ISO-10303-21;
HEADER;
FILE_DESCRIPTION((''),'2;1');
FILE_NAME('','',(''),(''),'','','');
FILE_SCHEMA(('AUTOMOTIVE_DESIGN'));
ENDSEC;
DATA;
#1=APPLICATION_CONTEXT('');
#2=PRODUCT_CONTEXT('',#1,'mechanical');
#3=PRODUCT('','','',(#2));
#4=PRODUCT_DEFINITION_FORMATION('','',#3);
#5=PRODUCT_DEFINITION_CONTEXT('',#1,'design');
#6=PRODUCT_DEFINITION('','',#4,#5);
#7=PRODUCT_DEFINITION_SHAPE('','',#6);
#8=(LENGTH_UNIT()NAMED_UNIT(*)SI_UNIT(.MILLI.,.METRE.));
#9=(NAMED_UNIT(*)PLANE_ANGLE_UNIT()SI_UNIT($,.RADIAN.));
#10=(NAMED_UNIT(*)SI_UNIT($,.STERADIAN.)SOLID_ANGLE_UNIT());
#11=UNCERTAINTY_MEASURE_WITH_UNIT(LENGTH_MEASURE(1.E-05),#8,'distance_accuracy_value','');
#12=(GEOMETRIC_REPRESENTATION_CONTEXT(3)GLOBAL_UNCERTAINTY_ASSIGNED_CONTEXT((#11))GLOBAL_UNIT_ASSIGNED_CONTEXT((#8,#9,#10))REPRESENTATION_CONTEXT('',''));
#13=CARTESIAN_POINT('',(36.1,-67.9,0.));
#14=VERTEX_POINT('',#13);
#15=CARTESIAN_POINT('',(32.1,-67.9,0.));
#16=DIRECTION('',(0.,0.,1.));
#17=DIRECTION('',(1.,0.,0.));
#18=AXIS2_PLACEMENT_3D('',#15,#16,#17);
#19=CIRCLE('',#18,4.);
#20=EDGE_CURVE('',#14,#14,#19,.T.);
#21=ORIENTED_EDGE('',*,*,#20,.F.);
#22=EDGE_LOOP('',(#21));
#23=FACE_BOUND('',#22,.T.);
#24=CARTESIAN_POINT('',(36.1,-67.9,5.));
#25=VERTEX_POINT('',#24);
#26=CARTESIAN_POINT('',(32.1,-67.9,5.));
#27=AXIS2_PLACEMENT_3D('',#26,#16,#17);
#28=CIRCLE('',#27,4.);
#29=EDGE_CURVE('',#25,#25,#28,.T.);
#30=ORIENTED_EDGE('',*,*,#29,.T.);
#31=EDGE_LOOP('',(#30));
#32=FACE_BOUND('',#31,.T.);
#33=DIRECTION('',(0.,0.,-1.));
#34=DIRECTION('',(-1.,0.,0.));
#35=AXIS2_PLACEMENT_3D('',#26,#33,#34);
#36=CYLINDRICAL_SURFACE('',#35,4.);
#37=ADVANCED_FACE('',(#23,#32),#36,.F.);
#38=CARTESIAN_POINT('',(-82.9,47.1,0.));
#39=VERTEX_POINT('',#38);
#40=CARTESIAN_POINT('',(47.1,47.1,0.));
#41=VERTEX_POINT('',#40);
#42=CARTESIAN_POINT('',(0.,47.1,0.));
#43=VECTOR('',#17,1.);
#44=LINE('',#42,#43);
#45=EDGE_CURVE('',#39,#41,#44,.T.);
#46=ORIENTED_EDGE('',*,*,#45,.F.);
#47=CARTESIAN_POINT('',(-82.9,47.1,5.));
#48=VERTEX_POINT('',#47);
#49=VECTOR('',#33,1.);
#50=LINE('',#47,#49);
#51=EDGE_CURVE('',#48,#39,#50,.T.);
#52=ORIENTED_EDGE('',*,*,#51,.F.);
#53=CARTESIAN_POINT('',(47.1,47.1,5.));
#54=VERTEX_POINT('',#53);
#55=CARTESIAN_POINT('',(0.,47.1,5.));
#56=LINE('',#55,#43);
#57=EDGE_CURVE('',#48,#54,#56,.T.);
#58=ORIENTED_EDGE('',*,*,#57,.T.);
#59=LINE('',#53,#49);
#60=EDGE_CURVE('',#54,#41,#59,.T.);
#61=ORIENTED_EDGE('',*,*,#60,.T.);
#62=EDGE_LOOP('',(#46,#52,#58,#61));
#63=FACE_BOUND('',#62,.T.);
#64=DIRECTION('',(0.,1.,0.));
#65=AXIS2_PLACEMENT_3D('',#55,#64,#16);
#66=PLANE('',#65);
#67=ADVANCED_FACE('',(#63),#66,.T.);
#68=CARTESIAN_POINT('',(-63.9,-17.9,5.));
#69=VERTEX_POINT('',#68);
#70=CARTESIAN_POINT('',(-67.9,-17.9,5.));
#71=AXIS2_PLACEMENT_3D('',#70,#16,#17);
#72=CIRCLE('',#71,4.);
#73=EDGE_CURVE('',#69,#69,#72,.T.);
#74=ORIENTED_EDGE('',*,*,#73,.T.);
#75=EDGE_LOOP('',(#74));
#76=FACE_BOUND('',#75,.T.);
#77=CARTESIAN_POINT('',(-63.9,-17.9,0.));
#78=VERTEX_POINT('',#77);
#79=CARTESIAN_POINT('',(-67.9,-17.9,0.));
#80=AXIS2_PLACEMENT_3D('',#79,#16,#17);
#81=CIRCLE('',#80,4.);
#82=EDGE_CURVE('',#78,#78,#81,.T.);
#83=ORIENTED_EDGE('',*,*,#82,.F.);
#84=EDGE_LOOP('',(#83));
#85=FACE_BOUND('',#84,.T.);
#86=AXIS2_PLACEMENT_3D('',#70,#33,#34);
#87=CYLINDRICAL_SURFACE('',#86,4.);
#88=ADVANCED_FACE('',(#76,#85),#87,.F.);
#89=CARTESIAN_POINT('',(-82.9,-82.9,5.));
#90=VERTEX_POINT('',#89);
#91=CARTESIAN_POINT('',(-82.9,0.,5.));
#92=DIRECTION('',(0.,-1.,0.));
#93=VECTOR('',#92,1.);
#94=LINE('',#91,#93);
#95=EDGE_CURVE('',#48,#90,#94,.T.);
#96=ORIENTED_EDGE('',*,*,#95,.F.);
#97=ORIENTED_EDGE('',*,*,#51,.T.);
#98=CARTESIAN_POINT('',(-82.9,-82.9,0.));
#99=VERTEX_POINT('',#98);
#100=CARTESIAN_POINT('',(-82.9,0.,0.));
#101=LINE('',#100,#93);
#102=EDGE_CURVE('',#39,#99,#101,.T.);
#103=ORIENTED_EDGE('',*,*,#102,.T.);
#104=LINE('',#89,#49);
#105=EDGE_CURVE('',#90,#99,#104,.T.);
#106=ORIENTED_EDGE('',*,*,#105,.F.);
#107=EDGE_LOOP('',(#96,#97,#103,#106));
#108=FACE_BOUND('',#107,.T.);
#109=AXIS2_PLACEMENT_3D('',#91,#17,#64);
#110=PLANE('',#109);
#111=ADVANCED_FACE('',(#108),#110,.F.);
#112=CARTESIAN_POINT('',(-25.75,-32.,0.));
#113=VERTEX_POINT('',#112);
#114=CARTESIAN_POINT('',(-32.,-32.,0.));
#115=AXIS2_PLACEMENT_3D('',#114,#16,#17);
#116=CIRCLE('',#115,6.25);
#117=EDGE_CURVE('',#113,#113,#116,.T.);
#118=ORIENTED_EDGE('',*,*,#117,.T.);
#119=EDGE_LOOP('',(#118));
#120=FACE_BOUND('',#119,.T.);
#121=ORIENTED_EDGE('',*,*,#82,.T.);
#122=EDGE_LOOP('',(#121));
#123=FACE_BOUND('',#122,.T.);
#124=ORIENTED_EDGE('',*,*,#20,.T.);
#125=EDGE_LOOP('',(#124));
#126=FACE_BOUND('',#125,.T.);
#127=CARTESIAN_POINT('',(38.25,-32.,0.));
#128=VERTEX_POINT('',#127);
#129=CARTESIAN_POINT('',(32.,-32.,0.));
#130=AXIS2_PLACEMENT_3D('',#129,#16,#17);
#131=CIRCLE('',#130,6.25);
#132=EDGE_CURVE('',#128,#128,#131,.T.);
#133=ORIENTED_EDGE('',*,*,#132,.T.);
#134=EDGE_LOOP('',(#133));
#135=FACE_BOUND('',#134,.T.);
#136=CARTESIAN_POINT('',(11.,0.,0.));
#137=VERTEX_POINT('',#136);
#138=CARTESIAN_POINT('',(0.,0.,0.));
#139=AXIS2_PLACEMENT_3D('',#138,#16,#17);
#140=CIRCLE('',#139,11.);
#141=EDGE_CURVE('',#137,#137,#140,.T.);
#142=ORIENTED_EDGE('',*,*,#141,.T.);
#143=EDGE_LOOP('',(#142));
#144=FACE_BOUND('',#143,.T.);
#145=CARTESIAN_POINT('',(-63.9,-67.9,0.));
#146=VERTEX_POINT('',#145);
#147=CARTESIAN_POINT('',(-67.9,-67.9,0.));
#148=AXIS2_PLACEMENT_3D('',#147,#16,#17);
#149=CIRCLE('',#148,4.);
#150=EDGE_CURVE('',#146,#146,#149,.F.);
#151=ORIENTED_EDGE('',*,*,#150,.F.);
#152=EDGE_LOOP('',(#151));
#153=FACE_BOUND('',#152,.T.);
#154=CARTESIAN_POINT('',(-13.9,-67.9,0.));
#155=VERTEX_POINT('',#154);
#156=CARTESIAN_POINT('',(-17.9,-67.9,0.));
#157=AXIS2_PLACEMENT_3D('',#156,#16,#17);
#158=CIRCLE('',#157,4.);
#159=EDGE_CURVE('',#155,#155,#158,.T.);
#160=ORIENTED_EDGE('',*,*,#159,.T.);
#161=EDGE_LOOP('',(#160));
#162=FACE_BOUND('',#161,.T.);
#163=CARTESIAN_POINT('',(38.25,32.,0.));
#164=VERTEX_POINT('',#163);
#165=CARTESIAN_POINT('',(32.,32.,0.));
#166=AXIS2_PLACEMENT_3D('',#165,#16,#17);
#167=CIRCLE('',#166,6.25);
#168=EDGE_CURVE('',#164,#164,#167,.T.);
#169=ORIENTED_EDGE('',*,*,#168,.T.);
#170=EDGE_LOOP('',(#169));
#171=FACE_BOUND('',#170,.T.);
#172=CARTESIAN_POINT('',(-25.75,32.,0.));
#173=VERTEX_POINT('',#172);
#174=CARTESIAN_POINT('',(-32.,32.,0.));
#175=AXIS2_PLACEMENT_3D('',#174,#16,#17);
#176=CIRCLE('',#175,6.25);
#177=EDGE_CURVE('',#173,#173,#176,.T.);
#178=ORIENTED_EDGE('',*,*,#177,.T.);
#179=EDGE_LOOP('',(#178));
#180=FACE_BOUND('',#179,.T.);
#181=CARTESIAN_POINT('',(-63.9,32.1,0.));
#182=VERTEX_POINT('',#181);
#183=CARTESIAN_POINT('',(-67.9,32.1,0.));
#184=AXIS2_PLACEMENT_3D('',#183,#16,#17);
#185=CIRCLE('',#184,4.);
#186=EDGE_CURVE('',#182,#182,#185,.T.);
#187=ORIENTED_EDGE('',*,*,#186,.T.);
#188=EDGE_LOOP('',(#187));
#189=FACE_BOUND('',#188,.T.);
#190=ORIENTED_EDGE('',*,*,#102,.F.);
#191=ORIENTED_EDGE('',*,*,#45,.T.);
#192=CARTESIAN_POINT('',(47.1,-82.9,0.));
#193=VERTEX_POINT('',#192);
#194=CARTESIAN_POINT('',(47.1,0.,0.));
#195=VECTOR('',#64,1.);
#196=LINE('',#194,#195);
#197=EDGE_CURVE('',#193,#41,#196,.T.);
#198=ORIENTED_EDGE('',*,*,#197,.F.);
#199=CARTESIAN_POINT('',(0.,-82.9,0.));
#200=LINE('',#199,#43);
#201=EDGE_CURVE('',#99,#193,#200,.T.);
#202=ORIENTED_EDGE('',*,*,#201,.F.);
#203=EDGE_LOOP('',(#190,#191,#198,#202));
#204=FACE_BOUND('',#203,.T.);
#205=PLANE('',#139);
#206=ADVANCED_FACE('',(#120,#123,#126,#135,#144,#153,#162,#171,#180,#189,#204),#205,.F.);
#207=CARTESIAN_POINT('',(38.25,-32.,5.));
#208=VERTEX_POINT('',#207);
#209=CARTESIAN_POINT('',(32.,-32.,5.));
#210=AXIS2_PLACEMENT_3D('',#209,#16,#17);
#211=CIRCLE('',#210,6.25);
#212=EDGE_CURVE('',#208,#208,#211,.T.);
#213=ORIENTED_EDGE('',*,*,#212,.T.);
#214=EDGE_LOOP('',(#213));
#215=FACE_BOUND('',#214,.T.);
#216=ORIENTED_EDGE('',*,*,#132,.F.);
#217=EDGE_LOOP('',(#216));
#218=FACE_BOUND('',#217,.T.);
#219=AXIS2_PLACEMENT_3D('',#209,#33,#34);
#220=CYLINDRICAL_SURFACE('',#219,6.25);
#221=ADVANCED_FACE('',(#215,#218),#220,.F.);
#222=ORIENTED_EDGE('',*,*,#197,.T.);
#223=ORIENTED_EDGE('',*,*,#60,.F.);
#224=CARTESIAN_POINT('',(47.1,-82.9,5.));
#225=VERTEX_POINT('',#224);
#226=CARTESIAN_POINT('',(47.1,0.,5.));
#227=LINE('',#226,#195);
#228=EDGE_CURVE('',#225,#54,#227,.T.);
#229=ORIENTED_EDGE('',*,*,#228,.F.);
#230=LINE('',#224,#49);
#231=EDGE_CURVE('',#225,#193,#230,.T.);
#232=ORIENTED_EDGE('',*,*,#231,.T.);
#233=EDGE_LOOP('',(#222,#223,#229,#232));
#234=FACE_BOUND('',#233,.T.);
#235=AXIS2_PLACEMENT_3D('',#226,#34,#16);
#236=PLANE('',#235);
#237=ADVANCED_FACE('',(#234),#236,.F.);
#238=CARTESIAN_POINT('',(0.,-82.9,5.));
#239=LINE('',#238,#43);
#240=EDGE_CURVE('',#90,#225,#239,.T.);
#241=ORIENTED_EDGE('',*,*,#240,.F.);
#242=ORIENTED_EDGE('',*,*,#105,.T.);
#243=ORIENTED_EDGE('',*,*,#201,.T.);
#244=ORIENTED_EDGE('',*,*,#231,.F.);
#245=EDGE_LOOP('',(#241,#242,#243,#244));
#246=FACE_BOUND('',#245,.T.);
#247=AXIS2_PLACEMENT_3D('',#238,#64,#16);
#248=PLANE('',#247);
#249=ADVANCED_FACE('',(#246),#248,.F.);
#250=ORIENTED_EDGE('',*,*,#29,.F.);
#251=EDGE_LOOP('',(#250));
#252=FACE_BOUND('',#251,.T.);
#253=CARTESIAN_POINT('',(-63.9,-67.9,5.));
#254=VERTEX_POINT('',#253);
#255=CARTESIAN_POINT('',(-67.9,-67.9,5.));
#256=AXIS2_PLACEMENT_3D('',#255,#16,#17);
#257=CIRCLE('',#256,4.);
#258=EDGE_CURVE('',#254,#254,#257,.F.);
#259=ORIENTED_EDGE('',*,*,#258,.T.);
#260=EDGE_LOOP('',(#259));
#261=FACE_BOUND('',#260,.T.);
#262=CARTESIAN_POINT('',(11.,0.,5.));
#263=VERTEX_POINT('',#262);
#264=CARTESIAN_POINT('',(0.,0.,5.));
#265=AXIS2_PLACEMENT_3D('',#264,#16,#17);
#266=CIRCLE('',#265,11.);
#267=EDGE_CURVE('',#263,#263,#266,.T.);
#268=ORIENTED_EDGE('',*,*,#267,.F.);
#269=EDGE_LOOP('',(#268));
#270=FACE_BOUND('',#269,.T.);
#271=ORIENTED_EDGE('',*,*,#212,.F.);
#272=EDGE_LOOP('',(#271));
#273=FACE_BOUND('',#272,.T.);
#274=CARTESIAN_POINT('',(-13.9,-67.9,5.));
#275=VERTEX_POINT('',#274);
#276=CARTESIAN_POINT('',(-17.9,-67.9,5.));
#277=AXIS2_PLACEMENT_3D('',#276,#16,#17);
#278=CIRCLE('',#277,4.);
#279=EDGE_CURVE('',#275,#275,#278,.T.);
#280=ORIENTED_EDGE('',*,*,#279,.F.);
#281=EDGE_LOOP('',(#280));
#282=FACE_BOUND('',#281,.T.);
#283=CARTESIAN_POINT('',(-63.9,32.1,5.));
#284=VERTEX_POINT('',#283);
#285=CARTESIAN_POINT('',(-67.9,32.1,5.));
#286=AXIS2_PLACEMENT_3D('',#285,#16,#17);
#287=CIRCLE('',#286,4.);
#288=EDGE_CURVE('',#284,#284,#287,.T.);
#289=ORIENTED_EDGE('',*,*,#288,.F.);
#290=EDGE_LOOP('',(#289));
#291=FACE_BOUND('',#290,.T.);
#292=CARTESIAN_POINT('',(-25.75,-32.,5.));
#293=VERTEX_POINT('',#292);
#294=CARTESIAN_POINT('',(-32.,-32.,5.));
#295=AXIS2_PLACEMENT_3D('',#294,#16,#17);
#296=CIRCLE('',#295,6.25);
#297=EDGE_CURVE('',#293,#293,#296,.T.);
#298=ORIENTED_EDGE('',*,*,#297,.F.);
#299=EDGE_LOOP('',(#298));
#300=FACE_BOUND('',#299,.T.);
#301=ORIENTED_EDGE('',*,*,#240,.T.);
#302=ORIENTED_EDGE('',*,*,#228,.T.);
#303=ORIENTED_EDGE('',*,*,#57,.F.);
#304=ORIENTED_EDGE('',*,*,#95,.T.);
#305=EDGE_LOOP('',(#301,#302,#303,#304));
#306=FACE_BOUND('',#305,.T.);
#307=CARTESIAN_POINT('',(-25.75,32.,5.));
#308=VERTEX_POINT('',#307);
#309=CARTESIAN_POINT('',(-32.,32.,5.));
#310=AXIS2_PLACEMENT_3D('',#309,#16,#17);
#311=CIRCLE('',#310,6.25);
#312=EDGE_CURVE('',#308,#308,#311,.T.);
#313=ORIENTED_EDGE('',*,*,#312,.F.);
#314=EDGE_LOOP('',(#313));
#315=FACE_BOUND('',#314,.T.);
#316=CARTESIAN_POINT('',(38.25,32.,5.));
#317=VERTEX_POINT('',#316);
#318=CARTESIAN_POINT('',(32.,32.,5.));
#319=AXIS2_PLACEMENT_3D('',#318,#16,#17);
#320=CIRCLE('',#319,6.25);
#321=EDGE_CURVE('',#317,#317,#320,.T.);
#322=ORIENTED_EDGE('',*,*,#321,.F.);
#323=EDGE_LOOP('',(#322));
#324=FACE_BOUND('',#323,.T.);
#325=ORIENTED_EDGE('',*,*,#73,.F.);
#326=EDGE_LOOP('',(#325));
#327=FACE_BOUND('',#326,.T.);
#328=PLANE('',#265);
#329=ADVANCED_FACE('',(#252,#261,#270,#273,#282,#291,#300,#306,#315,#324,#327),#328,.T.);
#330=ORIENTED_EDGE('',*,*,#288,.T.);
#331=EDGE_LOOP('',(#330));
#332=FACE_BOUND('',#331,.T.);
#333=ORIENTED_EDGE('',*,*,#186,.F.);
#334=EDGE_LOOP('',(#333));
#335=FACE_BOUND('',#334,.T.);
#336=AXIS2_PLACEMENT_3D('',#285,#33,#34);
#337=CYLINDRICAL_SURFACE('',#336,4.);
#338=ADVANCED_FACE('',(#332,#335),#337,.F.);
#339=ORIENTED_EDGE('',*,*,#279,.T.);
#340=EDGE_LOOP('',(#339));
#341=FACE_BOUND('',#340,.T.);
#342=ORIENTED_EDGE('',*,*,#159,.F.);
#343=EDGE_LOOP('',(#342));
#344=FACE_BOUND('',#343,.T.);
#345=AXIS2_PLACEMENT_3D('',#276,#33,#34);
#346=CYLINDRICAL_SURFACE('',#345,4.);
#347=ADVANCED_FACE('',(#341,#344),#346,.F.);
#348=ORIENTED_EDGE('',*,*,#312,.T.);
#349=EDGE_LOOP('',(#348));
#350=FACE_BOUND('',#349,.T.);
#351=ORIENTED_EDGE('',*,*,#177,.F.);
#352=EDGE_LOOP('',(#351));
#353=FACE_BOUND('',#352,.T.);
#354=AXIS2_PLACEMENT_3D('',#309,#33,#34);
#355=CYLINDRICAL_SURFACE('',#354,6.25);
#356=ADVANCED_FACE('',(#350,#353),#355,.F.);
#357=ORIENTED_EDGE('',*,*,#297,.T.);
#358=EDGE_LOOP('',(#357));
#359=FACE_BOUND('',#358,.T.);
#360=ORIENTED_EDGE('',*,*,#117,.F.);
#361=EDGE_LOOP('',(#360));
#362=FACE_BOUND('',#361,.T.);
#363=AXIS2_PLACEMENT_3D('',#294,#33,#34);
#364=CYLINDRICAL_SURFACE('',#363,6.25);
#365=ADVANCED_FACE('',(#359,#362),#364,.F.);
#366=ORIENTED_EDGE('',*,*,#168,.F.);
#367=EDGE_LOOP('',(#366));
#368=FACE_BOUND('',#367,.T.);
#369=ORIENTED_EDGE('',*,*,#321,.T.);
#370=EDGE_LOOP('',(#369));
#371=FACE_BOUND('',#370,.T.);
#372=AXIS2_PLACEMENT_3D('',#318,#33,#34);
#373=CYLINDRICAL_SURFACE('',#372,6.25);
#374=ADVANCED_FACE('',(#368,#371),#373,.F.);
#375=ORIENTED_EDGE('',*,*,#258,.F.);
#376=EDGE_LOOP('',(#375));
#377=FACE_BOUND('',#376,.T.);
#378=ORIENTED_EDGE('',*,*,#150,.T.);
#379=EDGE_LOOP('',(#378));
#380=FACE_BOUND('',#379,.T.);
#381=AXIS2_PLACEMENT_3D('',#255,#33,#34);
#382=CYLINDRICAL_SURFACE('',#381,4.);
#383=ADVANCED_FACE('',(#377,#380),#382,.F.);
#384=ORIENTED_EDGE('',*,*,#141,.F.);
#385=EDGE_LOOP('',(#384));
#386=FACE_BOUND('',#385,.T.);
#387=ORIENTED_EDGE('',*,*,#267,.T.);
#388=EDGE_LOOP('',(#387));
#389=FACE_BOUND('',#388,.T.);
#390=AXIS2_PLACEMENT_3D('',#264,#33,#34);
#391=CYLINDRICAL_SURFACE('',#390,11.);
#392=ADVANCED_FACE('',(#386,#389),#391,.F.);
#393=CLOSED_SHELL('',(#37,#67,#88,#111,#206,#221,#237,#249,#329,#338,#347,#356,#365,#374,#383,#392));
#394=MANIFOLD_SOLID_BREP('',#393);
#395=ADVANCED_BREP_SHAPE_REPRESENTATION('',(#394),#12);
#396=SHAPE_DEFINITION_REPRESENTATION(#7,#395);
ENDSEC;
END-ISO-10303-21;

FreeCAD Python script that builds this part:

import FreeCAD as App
import Part
import Sketcher
Q = App.Units.Quantity

doc = App.newDocument("Part")
body = doc.addObject("PartDesign::Body", "Body")

sketch1 = doc.addObject("Sketcher::SketchObject", "Sketch")
body.addObject(sketch1)
sketch1.AttachmentSupport = (doc.XY_Plane, [""])
sketch1.MapMode = "FlatFace"
sketch1.addGeometry([
    Part.LineSegment(App.Vector(-82.9, 47.1, 0), App.Vector(-82.9, -82.9, 0)),
    Part.LineSegment(App.Vector(-82.9, -82.9, 0), App.Vector(47.1, -82.9, 0)),
    Part.LineSegment(App.Vector(47.1, -82.9, 0), App.Vector(47.1, 47.1, 0)),
    Part.LineSegment(App.Vector(47.1, 47.1, 0), App.Vector(-82.9, 47.1, 0)),
    Part.Circle(App.Vector(-67.9, -67.9, 0), App.Vector(0, 0, 1), 4),
    Part.Circle(App.Vector(-17.9, -67.9, 0), App.Vector(0, 0, 1), 4),
    Part.Circle(App.Vector(-67.9, -17.9, 0), App.Vector(0, 0, 1), 4),
    Part.Circle(App.Vector(-32, -32, 0), App.Vector(0, 0, 1), 6.2),
    Part.Circle(App.Vector(32.1, -67.9, 0), App.Vector(0, 0, 1), 4),
    Part.Circle(App.Vector(32, -32, 0), App.Vector(0, 0, 1), 6.2),
    Part.Circle(App.Vector(-67.9, 32.1, 0), App.Vector(0, 0, 1), 4),
    Part.Circle(App.Vector(-32, 32, 0), App.Vector(0, 0, 1), 6.2),
    Part.Circle(App.Vector(0, 0, 0), App.Vector(0, 0, 1), 11),
    Part.Circle(App.Vector(32, 32, 0), App.Vector(0, 0, 1), 6.2),
], False)
sketch1.addConstraint([
    Sketcher.Constraint("Coincident", 0, 2, 1, 1),
    Sketcher.Constraint("Coincident", 1, 2, 2, 1),
    Sketcher.Constraint("Coincident", 2, 2, 3, 1),
    Sketcher.Constraint("Coincident", 3, 2, 0, 1),
    Sketcher.Constraint("Vertical", 0),
    Sketcher.Constraint("Horizontal", 1),
    Sketcher.Constraint("Vertical", 2),
    Sketcher.Constraint("Horizontal", 3),
    Sketcher.Constraint("Coincident", 12, 3, -1, 1),
    Sketcher.Constraint("Equal", 4, 5),
    Sketcher.Constraint("Equal", 5, 6),
    Sketcher.Constraint("Equal", 6, 8),
    Sketcher.Constraint("Equal", 7, 9),
    Sketcher.Constraint("Equal", 8, 10),
    Sketcher.Constraint("Equal", 9, 11),
    Sketcher.Constraint("Equal", 11, 13),
    Sketcher.Constraint("Symmetric", 9, 3, 11, 3, -1, 1),
    Sketcher.Constraint("Symmetric", 7, 3, 13, 3, -1, 1),
    Sketcher.Constraint("Symmetric", 7, 3, 9, 3, -2),
    Sketcher.Constraint("Horizontal", 4, 3, 5, 3),
    Sketcher.Constraint("Horizontal", 5, 3, 8, 3),
    Sketcher.Constraint("Vertical", 4, 3, 6, 3),
    Sketcher.Constraint("Vertical", 6, 3, 10, 3),
    Sketcher.Constraint("Equal", 3, 0),
    Sketcher.Constraint("Diameter", 4, Q("8 mm")),
    Sketcher.Constraint("Diameter", 12, Q("22 mm")),
    Sketcher.Constraint("Diameter", 7, Q("12.5 mm")),
    Sketcher.Constraint("DistanceX", 1, 1, 1, 2, Q("130 mm")),
    Sketcher.Constraint("DistanceX", 7, 3, -1, 1, Q("32 mm")),
    Sketcher.Constraint("DistanceY", 7, 3, -1, 1, Q("32 mm")),
    Sketcher.Constraint("DistanceX", 4, 3, 5, 3, Q("50 mm")),
    Sketcher.Constraint("DistanceY", 4, 3, 6, 3, Q("50 mm")),
    Sketcher.Constraint("DistanceX", 5, 3, 8, 3, Q("50 mm")),
    Sketcher.Constraint("DistanceY", 6, 3, 10, 3, Q("50 mm")),
    Sketcher.Constraint("DistanceX", 0, 2, 4, 3, Q("15 mm")),
    Sketcher.Constraint("DistanceY", 0, 2, 4, 3, Q("15 mm")),
    Sketcher.Constraint("DistanceX", 4, 3, -1, 1, Q("67.9 mm")),
    Sketcher.Constraint("DistanceY", 4, 3, -1, 1, Q("67.9 mm")),
])
pad1 = doc.addObject("PartDesign::Pad", "Pad")
body.addObject(pad1)
pad1.Profile = sketch1
pad1.Length = 5

doc.recompute()
